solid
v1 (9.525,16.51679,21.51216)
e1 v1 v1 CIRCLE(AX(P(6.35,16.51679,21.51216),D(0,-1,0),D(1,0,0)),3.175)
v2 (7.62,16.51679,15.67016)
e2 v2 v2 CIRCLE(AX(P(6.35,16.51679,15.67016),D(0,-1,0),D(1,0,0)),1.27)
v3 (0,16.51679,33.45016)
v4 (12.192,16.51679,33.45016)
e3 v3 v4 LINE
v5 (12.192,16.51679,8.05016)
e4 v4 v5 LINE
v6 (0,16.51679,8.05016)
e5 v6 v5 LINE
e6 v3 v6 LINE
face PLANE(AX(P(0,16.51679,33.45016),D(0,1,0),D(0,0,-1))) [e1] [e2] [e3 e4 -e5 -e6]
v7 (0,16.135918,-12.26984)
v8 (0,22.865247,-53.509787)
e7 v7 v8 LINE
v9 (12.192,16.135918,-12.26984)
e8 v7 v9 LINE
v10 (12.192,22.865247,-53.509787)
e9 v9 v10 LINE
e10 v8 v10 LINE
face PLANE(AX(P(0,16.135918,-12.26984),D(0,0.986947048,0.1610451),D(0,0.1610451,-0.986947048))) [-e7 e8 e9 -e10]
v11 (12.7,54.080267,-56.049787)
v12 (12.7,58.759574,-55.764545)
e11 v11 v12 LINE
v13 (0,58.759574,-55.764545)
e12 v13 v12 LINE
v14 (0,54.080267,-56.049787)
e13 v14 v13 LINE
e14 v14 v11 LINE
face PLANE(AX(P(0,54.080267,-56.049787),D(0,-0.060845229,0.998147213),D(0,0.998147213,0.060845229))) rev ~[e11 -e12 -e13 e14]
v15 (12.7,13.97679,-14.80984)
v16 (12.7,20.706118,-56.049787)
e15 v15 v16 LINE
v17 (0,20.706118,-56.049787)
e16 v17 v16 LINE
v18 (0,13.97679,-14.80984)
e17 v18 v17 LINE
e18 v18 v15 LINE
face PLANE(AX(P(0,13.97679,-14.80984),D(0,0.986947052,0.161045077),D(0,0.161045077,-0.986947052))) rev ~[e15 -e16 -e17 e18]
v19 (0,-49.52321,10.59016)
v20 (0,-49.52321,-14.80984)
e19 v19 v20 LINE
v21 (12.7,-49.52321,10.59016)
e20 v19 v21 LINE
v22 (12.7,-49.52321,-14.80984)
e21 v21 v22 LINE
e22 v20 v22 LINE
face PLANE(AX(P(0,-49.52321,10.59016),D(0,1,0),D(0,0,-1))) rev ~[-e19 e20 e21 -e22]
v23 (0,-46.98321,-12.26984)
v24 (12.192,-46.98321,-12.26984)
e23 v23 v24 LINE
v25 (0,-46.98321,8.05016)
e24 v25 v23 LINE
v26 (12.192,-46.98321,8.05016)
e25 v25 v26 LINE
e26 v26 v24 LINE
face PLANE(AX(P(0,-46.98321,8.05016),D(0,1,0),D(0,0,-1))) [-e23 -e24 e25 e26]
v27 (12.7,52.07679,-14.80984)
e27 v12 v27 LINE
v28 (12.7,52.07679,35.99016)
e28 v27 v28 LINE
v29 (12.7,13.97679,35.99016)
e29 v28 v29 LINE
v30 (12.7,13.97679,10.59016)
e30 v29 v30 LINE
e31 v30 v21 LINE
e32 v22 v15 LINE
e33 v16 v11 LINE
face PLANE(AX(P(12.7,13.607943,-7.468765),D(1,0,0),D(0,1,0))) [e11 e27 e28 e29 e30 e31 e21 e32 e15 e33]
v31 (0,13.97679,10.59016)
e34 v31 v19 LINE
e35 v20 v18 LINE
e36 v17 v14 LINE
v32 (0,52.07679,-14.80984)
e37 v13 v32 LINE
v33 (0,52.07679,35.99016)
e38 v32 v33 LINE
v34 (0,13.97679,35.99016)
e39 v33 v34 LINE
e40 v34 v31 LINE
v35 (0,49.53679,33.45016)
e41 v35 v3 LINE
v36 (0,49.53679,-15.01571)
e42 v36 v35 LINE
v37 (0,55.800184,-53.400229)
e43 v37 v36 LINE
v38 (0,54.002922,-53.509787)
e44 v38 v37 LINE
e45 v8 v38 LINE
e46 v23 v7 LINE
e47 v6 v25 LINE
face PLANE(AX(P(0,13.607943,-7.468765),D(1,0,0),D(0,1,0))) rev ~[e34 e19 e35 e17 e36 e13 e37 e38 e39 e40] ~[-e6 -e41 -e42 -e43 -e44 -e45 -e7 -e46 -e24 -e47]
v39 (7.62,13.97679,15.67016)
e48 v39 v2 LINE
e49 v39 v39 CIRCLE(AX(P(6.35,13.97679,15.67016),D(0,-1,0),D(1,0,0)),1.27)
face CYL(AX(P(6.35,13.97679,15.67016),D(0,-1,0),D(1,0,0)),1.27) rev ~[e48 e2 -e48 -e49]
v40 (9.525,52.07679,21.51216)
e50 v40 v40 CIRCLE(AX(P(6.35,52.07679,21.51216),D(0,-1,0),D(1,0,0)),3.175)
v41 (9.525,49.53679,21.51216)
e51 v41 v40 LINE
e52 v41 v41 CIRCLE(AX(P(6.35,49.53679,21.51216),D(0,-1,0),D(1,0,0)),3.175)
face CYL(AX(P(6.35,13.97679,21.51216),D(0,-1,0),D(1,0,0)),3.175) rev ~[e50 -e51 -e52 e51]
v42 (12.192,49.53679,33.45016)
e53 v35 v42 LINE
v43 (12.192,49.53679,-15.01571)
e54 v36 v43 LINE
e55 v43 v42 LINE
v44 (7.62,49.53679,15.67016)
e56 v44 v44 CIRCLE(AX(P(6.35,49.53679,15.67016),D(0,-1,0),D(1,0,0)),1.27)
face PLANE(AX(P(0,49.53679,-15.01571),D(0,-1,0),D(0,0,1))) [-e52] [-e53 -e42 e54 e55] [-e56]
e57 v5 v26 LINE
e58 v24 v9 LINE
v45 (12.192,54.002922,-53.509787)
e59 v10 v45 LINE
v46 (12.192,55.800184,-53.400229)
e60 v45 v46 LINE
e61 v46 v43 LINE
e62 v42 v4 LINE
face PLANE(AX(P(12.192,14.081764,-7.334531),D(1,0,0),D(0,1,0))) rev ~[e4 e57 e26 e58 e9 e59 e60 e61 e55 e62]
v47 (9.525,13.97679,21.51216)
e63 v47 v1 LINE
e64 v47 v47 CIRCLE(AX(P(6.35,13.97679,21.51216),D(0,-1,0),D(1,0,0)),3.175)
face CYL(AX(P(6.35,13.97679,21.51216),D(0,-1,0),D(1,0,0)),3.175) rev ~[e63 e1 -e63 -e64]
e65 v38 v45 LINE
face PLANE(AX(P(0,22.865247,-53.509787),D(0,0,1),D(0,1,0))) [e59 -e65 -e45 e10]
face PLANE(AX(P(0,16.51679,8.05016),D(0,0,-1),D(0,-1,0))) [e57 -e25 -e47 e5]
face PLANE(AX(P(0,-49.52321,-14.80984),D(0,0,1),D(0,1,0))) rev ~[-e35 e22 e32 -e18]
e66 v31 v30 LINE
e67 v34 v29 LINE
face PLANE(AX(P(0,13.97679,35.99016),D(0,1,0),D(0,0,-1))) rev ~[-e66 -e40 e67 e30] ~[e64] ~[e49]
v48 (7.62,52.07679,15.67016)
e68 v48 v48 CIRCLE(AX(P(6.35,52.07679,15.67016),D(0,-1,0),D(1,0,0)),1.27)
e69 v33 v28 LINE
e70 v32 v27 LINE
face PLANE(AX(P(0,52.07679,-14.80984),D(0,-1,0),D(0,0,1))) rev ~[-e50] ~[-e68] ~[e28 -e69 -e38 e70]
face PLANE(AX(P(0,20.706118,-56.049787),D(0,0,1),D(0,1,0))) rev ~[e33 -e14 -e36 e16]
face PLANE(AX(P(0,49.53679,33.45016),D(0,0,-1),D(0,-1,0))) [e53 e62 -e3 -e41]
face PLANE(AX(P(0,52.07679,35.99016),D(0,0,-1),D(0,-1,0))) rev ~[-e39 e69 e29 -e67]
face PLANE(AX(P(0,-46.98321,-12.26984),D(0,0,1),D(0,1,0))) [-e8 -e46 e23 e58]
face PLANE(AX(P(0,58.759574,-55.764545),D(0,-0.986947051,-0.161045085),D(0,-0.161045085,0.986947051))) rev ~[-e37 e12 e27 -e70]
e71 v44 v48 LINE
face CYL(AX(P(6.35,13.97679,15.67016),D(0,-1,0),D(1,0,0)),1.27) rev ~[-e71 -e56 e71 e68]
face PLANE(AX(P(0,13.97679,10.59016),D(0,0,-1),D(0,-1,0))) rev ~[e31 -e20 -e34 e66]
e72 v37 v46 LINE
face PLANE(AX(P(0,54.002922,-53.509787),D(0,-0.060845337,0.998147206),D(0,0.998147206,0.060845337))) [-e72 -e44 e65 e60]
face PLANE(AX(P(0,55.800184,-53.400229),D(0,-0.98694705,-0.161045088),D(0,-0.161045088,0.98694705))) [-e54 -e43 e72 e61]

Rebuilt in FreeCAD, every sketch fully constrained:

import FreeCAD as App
import Part
import Sketcher
from FreeCAD import Vector
Q = App.Units.Quantity

doc = App.newDocument("Part")
params = doc.addObject("Spreadsheet::Sheet", "Params")
for row, (alias, value) in enumerate([
    ("sketch1_height", "1 in"),
    ("sketch1_width", "2.5 in"),
    ("sketch1_width2", "1.5 in"),
    ("pad1_length", "0.5 in"),
    ("sketch2_height", "1 in"),
    ("sketch2_width", "1.3 in"),
    ("sketch2_width2", "2.5 in"),
    ("sketch2_height2", "0.8 in"),
    ("pocket1_length", "0.48 in"),
    ("sketch3_diameter", "0.1 in"),
    ("pocket2_length", "38.23583 mm"),
    ("sketch4_diameter", "0.25 in"),
    ("pocket3_length", "38.23239 mm"),
], start=1):
    params.set(f"A{row}", alias)
    params.set(f"B{row}", "=" + value)
    params.setAlias(f"B{row}", alias)

body = doc.addObject("PartDesign::Body", "Body")

sketch1 = body.newObject("Sketcher::SketchObject", "Sketch")
sketch1.AttachmentSupport = (doc.getObject("YZ_Plane"), [""])
sketch1.MapMode = "FlatFace"
sketch1.addGeometry([
    Part.LineSegment(Vector(14, 10.6, 0), Vector(-49.5, 10.6, 0)),
    Part.LineSegment(Vector(-49.5, 10.6, 0), Vector(-49.5, -14.8, 0)),
    Part.LineSegment(Vector(-49.5, -14.8, 0), Vector(14, -14.8, 0)),
    Part.LineSegment(Vector(14, -14.8, 0), Vector(20.7, -56, 0)),
    Part.LineSegment(Vector(20.7, -56, 0), Vector(54.1, -56, 0)),
    Part.LineSegment(Vector(54.1, -56, 0), Vector(58.8, -55.8, 0)),
    Part.LineSegment(Vector(58.8, -55.8, 0), Vector(52.1, -14.8, 0)),
    Part.LineSegment(Vector(52.1, -14.8, 0), Vector(52.1, 36, 0)),
    Part.LineSegment(Vector(52.1, 36, 0), Vector(14, 36, 0)),
    Part.LineSegment(Vector(14, 36, 0), Vector(14, 10.6, 0)),
], False)
sketch1.addConstraint([
    Sketcher.Constraint("Coincident", 0, 2, 1, 1),
    Sketcher.Constraint("Coincident", 1, 2, 2, 1),
    Sketcher.Constraint("Coincident", 2, 2, 3, 1),
    Sketcher.Constraint("Coincident", 3, 2, 4, 1),
    Sketcher.Constraint("Coincident", 4, 2, 5, 1),
    Sketcher.Constraint("Coincident", 5, 2, 6, 1),
    Sketcher.Constraint("Coincident", 6, 2, 7, 1),
    Sketcher.Constraint("Coincident", 7, 2, 8, 1),
    Sketcher.Constraint("Coincident", 8, 2, 9, 1),
    Sketcher.Constraint("Coincident", 9, 2, 0, 1),
    Sketcher.Constraint("Horizontal", 0),
    Sketcher.Constraint("Vertical", 1),
    Sketcher.Constraint("Horizontal", 2),
    Sketcher.Constraint("Horizontal", 4),
    Sketcher.Constraint("Vertical", 7),
    Sketcher.Constraint("Horizontal", 8),
    Sketcher.Constraint("Vertical", 9),
    Sketcher.Constraint("Parallel", 3, 6),
    Sketcher.Constraint("Horizontal", 2, 2, 6, 2),
    Sketcher.Constraint("Vertical", 2, 2, 8, 2),
    Sketcher.Constraint("Equal", 1, 9),
    Sketcher.Constraint("DistanceY", 1, 2, 1, 1, Q("1 in")),
    Sketcher.Constraint("DistanceX", 0, 2, 0, 1, Q("2.5 in")),
    Sketcher.Constraint("DistanceX", 8, 2, 8, 1, Q("1.5 in")),
    Sketcher.Constraint("DistanceX", 4, 1, 4, 2, Q("33.374149 mm")),
    Sketcher.Constraint("Distance", 3, Q("41.785369 mm")),
    Sketcher.Constraint("DistanceX", 0, 2, -1, 1, Q("49.52321 mm")),
    Sketcher.Constraint("DistanceY", -1, 1, 0, 2, Q("10.59016 mm")),
    Sketcher.Constraint("DistanceX", -1, 1, 3, 2, Q("20.706118 mm")),
    Sketcher.Constraint("Distance", 5, Q("4.687993 mm")),
])
sketch1.setExpression("Constraints[21]", "Params.sketch1_height")
sketch1.setExpression("Constraints[22]", "Params.sketch1_width")
sketch1.setExpression("Constraints[23]", "Params.sketch1_width2")
pad1 = body.newObject("PartDesign::Pad", "Pad")
pad1.Profile = sketch1
pad1.setExpression("Length", "Params.pad1_length")

sketch2 = body.newObject("Sketcher::SketchObject", "Sketch001")
sketch2.AttachmentSupport = (doc.getObject("YZ_Plane"), [""])
sketch2.MapMode = "FlatFace"
sketch2.addGeometry([
    Part.LineSegment(Vector(16.1, -12.3, 0), Vector(22.9, -53.5, 0)),
    Part.LineSegment(Vector(22.9, -53.5, 0), Vector(54, -53.5, 0)),
    Part.LineSegment(Vector(54, -53.5, 0), Vector(55.8, -53.4, 0)),
    Part.LineSegment(Vector(55.8, -53.4, 0), Vector(49.5, -15, 0)),
    Part.LineSegment(Vector(49.5, -15, 0), Vector(49.5, 33.5, 0)),
    Part.LineSegment(Vector(49.5, 33.5, 0), Vector(16.5, 33.5, 0)),
    Part.LineSegment(Vector(16.5, 33.5, 0), Vector(16.5, 8.1, 0)),
    Part.LineSegment(Vector(16.5, 8.1, 0), Vector(-47, 8.1, 0)),
    Part.LineSegment(Vector(-47, 8.1, 0), Vector(-47, -12.3, 0)),
    Part.LineSegment(Vector(-47, -12.3, 0), Vector(16.1, -12.3, 0)),
], False)
sketch2.addConstraint([
    Sketcher.Constraint("Coincident", 0, 2, 1, 1),
    Sketcher.Constraint("Coincident", 1, 2, 2, 1),
    Sketcher.Constraint("Coincident", 2, 2, 3, 1),
    Sketcher.Constraint("Coincident", 3, 2, 4, 1),
    Sketcher.Constraint("Coincident", 4, 2, 5, 1),
    Sketcher.Constraint("Coincident", 5, 2, 6, 1),
    Sketcher.Constraint("Coincident", 6, 2, 7, 1),
    Sketcher.Constraint("Coincident", 7, 2, 8, 1),
    Sketcher.Constraint("Coincident", 8, 2, 9, 1),
    Sketcher.Constraint("Coincident", 9, 2, 0, 1),
    Sketcher.Constraint("Horizontal", 1),
    Sketcher.Constraint("Vertical", 4),
    Sketcher.Constraint("Horizontal", 5),
    Sketcher.Constraint("Vertical", 6),
    Sketcher.Constraint("Horizontal", 7),
    Sketcher.Constraint("Vertical", 8),
    Sketcher.Constraint("Horizontal", 9),
    Sketcher.Constraint("Parallel", 0, 3),
    Sketcher.Constraint("DistanceY", 6, 2, 6, 1, Q("1 in")),
    Sketcher.Constraint("DistanceX", 5, 2, 5, 1, Q("1.3 in")),
    Sketcher.Constraint("DistanceX", 7, 2, 7, 1, Q("2.5 in")),
    Sketcher.Constraint("DistanceY", 8, 2, 8, 1, Q("0.8 in")),
    Sketcher.Constraint("Distance", 2, Q("1.800598 mm")),
    Sketcher.Constraint("DistanceX", 9, 1, 9, 2, Q("63.119128 mm")),
    Sketcher.Constraint("DistanceY", 4, 1, 4, 2, Q("48.46587 mm")),
    Sketcher.Constraint("Distance", 0, Q("41.785369 mm")),
    Sketcher.Constraint("DistanceX", 1, 1, 1, 2, Q("31.137675 mm")),
    Sketcher.Constraint("DistanceX", -1, 1, 1, 2, Q("54.002922 mm")),
    Sketcher.Constraint("DistanceY", 2, 2, -1, 1, Q("53.400229 mm")),
    Sketcher.Constraint("DistanceX", -1, 1, 3, 2, Q("49.53679 mm")),
])
sketch2.setExpression("Constraints[18]", "Params.sketch2_height")
sketch2.setExpression("Constraints[19]", "Params.sketch2_width")
sketch2.setExpression("Constraints[20]", "Params.sketch2_width2")
sketch2.setExpression("Constraints[21]", "Params.sketch2_height2")
pocket1 = body.newObject("PartDesign::Pocket", "Pocket")
pocket1.Profile = sketch2
pocket1.setExpression("Length", "Params.pocket1_length")
pocket1.Reversed = True

sketch3 = body.newObject("Sketcher::SketchObject", "Sketch002")
sketch3.AttachmentSupport = (doc.getObject("XZ_Plane"), [""])
sketch3.MapMode = "FlatFace"
sketch3.AttachmentOffset = App.Placement(Vector(0, 0, -13.97679), App.Rotation())
sketch3.addGeometry(Part.Circle(Vector(6.3, 15.7, 0), Vector(0, 0, 1), 1.3), False)
sketch3.addConstraint([
    Sketcher.Constraint("Diameter", 0, Q("0.1 in")),
    Sketcher.Constraint("DistanceX", -1, 1, 0, 3, Q("0.25 in")),
    Sketcher.Constraint("DistanceY", -1, 1, 0, 3, Q("15.67016 mm")),
])
sketch3.setExpression("Constraints[0]", "Params.sketch3_diameter")
pocket2 = body.newObject("PartDesign::Pocket", "Pocket001")
pocket2.Profile = sketch3
pocket2.setExpression("Length", "Params.pocket2_length")

sketch4 = body.newObject("Sketcher::SketchObject", "Sketch003")
sketch4.AttachmentSupport = (doc.getObject("XZ_Plane"), [""])
sketch4.MapMode = "FlatFace"
sketch4.AttachmentOffset = App.Placement(Vector(0, 0, -13.97679), App.Rotation())
sketch4.addGeometry(Part.Circle(Vector(6.3, 21.5, 0), Vector(0, 0, 1), 3.2), False)
sketch4.addConstraint([
    Sketcher.Constraint("Diameter", 0, Q("0.25 in")),
    Sketcher.Constraint("DistanceX", -1, 1, 0, 3, Q("0.25 in")),
    Sketcher.Constraint("DistanceY", -1, 1, 0, 3, Q("21.51216 mm")),
])
sketch4.setExpression("Constraints[0]", "Params.sketch4_diameter")
pocket3 = body.newObject("PartDesign::Pocket", "Pocket002")
pocket3.Profile = sketch4
pocket3.setExpression("Length", "Params.pocket3_length")

doc.recompute()
